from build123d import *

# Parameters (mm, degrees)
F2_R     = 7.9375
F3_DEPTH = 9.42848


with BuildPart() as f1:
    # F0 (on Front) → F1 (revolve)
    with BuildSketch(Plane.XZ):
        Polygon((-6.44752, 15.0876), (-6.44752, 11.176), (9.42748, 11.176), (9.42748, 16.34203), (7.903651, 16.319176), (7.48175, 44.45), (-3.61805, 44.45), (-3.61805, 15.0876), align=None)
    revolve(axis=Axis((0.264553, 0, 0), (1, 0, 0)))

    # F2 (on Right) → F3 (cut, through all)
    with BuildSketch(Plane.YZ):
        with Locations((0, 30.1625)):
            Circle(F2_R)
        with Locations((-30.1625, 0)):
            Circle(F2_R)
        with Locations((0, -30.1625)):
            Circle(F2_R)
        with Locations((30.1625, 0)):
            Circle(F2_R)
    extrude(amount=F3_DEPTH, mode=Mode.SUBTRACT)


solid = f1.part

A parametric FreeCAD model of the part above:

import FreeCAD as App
import Part
import Sketcher
from FreeCAD import Vector
Q = App.Units.Quantity


def add_polygon(sketch, points):
    """Adds a closed chain of lines whose ends are joined by coincident constraints."""
    first, n = sketch.GeometryCount, len(points)
    for a, b in zip(points, points[1:] + points[:1]):
        sketch.addGeometry(Part.LineSegment(App.Vector(*a, 0), App.Vector(*b, 0)), False)
    for i in range(n):
        sketch.addConstraint(Sketcher.Constraint("Coincident", first + i, 2, first + (i + 1) % n, 1))

doc = App.newDocument("Part")
body = doc.addObject("PartDesign::Body", "Body")

sketch1 = doc.addObject("Sketcher::SketchObject", "Sketch")
body.addObject(sketch1)
sketch1.AttachmentSupport = (doc.XZ_Plane, [""])
sketch1.MapMode = "FlatFace"
add_polygon(sketch1, [(-6.44752, 15.0876), (-6.44752, 11.176), (9.42748, 11.176), (9.42748, 16.34203), (7.903651, 16.319176), (7.48175, 44.45), (-3.61805, 44.45), (-3.61805, 15.0876)])
sketch1.addConstraint(Sketcher.Constraint("Vertical", 0))
sketch1.addConstraint(Sketcher.Constraint("Horizontal", 1))
sketch1.addConstraint(Sketcher.Constraint("Vertical", 2))
sketch1.addConstraint(Sketcher.Constraint("Horizontal", 5))
sketch1.addConstraint(Sketcher.Constraint("Vertical", 6))
sketch1.addConstraint(Sketcher.Constraint("Horizontal", 7))
sketch1.addConstraint(Sketcher.Constraint("Perpendicular", 3, 4))
sketch1.addConstraint(Sketcher.Constraint("Distance", 3, Q("0.06 in")))
sketch1.addConstraint(Sketcher.Constraint("DistanceX", 1, 1, 1, 2, Q("0.625 in")))
sketch1.addConstraint(Sketcher.Constraint("DistanceX", 5, 2, 5, 1, Q("0.437 in")))
sketch1.addConstraint(Sketcher.Constraint("DistanceY", 0, 2, 0, 1, Q("0.154 in")))
sketch1.addConstraint(Sketcher.Constraint("DistanceY", 6, 2, 6, 1, Q("1.156 in")))
sketch1.addConstraint(Sketcher.Constraint("DistanceY", -1, 1, 0, 2, Q("0.44 in")))
sketch1.addConstraint(Sketcher.Constraint("DistanceX", 7, 2, 7, 1, 2.82947))
sketch1.addConstraint(Sketcher.Constraint("DistanceY", 2, 1, 2, 2, 5.16603))
sketch1.addConstraint(Sketcher.Constraint("DistanceX", 0, 2, -1, 1, 6.44752))
revolution = doc.addObject("PartDesign::Revolution", "Revolution")
body.addObject(revolution)
revolution.Profile = sketch1
revolution.ReferenceAxis = (sketch1, ["H_Axis"])
revolution.Angle = 360

sketch2 = doc.addObject("Sketcher::SketchObject", "Sketch001")
body.addObject(sketch2)
sketch2.AttachmentSupport = (doc.YZ_Plane, [""])
sketch2.MapMode = "FlatFace"
sketch2.addGeometry(Part.Circle(Vector(0, 30.1625, 0), Vector(0, 0, 1), 7.9375), False)
sketch2.addGeometry(Part.Circle(Vector(-30.1625, 0, 0), Vector(0, 0, 1), 7.9375), False)
sketch2.addGeometry(Part.Circle(Vector(0, -30.1625, 0), Vector(0, 0, 1), 7.9375), False)
sketch2.addGeometry(Part.Circle(Vector(30.1625, 0, 0), Vector(0, 0, 1), 7.9375), False)
sketch2.addConstraint(Sketcher.Constraint("Equal", 0, 1))
sketch2.addConstraint(Sketcher.Constraint("Equal", 1, 2))
sketch2.addConstraint(Sketcher.Constraint("Equal", 2, 3))
sketch2.addConstraint(Sketcher.Constraint("Symmetric", 0, 3, 2, 3, -1, 1))
sketch2.addConstraint(Sketcher.Constraint("Symmetric", 1, 3, 3, 3, -1, 1))
sketch2.addConstraint(Sketcher.Constraint("PointOnObject", 0, 3, -2))
sketch2.addConstraint(Sketcher.Constraint("PointOnObject", 1, 3, -1))
sketch2.addConstraint(Sketcher.Constraint("Diameter", 0, Q("0.625 in")))
sketch2.addConstraint(Sketcher.Constraint("DistanceY", -1, 1, 0, 3, Q("1.1875 in")))
sketch2.addConstraint(Sketcher.Constraint("DistanceX", 1, 3, -1, 1, Q("1.1875 in")))
pocket1 = doc.addObject("PartDesign::Pocket", "Pocket")
body.addObject(pocket1)
pocket1.Profile = sketch2
pocket1.Type = "ThroughAll"
pocket1.Reversed = True

doc.recompute()
